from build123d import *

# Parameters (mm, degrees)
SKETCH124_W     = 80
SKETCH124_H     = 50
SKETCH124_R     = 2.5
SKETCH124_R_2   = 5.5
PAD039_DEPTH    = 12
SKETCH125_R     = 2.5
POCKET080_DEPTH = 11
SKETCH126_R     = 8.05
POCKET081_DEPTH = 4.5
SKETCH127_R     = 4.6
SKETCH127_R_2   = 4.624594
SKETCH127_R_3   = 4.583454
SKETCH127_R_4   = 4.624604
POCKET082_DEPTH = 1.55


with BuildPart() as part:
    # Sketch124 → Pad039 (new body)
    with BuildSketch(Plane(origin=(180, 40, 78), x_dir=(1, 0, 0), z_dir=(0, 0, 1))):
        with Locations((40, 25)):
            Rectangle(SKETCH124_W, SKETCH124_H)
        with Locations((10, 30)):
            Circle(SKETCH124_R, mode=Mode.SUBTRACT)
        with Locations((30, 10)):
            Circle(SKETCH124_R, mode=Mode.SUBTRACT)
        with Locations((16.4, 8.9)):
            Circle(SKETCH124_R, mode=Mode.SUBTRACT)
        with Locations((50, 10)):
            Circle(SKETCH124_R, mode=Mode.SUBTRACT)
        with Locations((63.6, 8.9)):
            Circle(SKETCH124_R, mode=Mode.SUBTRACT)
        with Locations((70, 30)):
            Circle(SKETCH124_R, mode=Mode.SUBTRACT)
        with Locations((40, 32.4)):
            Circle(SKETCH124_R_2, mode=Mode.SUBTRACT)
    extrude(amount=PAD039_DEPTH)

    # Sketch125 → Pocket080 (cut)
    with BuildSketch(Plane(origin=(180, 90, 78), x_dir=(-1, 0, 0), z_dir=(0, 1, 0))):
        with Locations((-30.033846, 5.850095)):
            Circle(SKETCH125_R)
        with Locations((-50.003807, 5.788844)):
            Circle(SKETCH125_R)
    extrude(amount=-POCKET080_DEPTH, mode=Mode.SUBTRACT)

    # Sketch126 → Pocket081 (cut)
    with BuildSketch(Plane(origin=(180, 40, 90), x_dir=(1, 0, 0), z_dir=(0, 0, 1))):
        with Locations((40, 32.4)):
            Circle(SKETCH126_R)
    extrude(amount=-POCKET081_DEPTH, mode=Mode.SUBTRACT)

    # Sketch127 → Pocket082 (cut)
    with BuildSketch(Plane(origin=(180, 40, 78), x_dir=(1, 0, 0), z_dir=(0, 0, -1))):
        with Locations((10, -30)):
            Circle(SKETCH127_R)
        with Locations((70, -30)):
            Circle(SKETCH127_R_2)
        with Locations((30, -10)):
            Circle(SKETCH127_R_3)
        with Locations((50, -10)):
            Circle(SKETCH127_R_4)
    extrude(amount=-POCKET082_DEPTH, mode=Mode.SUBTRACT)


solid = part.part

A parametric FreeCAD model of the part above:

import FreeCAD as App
import Part
import Sketcher
Q = App.Units.Quantity

doc = App.newDocument("Part")
body = doc.addObject("PartDesign::Body", "Body")

sketch1 = body.newObject("Sketcher::SketchObject", "Sketch")
sketch1.AttachmentSupport = (doc.getObject("XY_Plane"), [""])
sketch1.MapMode = "FlatFace"
sketch1.AttachmentOffset = App.Placement(App.Vector(0, 0, 78), App.Rotation())
sketch1.addGeometry([
    Part.LineSegment(App.Vector(180, 90, 0), App.Vector(180, 40, 0)),
    Part.LineSegment(App.Vector(180, 40, 0), App.Vector(260, 40, 0)),
    Part.LineSegment(App.Vector(260, 40, 0), App.Vector(260, 90, 0)),
    Part.LineSegment(App.Vector(260, 90, 0), App.Vector(180, 90, 0)),
    Part.Circle(App.Vector(196.4, 48.9, 0), App.Vector(0, 0, 1), 2.5),
    Part.Circle(App.Vector(210, 50, 0), App.Vector(0, 0, 1), 2.5),
    Part.Circle(App.Vector(230, 50, 0), App.Vector(0, 0, 1), 2.5),
    Part.Circle(App.Vector(243.6, 48.9, 0), App.Vector(0, 0, 1), 2.5),
    Part.Circle(App.Vector(190, 70, 0), App.Vector(0, 0, 1), 2.5),
    Part.Circle(App.Vector(250, 70, 0), App.Vector(0, 0, 1), 2.5),
    Part.Circle(App.Vector(220, 72.4, 0), App.Vector(0, 0, 1), 5.5),
], False)
sketch1.addConstraint([
    Sketcher.Constraint("Coincident", 0, 2, 1, 1),
    Sketcher.Constraint("Coincident", 1, 2, 2, 1),
    Sketcher.Constraint("Coincident", 2, 2, 3, 1),
    Sketcher.Constraint("Coincident", 3, 2, 0, 1),
    Sketcher.Constraint("Vertical", 0),
    Sketcher.Constraint("Horizontal", 1),
    Sketcher.Constraint("Vertical", 2),
    Sketcher.Constraint("Horizontal", 3),
    Sketcher.Constraint("Equal", 4, 5),
    Sketcher.Constraint("Equal", 5, 6),
    Sketcher.Constraint("Equal", 6, 7),
    Sketcher.Constraint("Equal", 7, 8),
    Sketcher.Constraint("Equal", 8, 9),
    Sketcher.Constraint("Horizontal", 5, 3, 6, 3),
    Sketcher.Constraint("Horizontal", 4, 3, 7, 3),
    Sketcher.Constraint("Horizontal", 8, 3, 9, 3),
    Sketcher.Constraint("Diameter", 4, Q("5 mm")),
    Sketcher.Constraint("Diameter", 10, Q("11 mm")),
    Sketcher.Constraint("DistanceX", 1, 1, 1, 2, Q("80 mm")),
    Sketcher.Constraint("DistanceY", 0, 2, 0, 1, Q("50 mm")),
    Sketcher.Constraint("DistanceX", -1, 1, 5, 3, Q("210 mm")),
    Sketcher.Constraint("DistanceY", -1, 1, 5, 3, Q("50 mm")),
    Sketcher.Constraint("DistanceX", -1, 1, 6, 3, Q("230 mm")),
    Sketcher.Constraint("DistanceX", -1, 1, 8, 3, Q("190 mm")),
    Sketcher.Constraint("DistanceY", -1, 1, 8, 3, Q("70 mm")),
    Sketcher.Constraint("DistanceX", -1, 1, 9, 3, Q("250 mm")),
    Sketcher.Constraint("DistanceX", -1, 1, 10, 3, Q("220 mm")),
    Sketcher.Constraint("DistanceX", -1, 1, 0, 2, Q("180 mm")),
    Sketcher.Constraint("DistanceY", -1, 1, 0, 2, Q("40 mm")),
    Sketcher.Constraint("DistanceX", -1, 1, 4, 3, Q("196.4 mm")),
    Sketcher.Constraint("DistanceY", -1, 1, 4, 3, Q("48.9 mm")),
    Sketcher.Constraint("DistanceX", -1, 1, 7, 3, Q("243.6 mm")),
    Sketcher.Constraint("DistanceY", -1, 1, 10, 3, Q("72.4 mm")),
])
pad1 = body.newObject("PartDesign::Pad", "Pad")
pad1.Profile = sketch1
pad1.Length = 12

sketch2 = body.newObject("Sketcher::SketchObject", "Sketch001")
sketch2.AttachmentSupport = (doc.getObject("XZ_Plane"), [""])
sketch2.MapMode = "FlatFace"
sketch2.AttachmentOffset = App.Placement(App.Vector(0, 0, -90), App.Rotation())
sketch2.addGeometry([
    Part.Circle(App.Vector(210.033846, 83.850095, 0), App.Vector(0, 0, 1), 2.5),
    Part.Circle(App.Vector(230.003807, 83.788844, 0), App.Vector(0, 0, 1), 2.5),
], False)
sketch2.addConstraint([
    Sketcher.Constraint("Equal", 0, 1),
    Sketcher.Constraint("Diameter", 0, Q("5 mm")),
    Sketcher.Constraint("DistanceX", 0, 3, 1, 3, Q("19.969961 mm")),
    Sketcher.Constraint("DistanceY", 1, 3, 0, 3, Q("0.061251 mm")),
    Sketcher.Constraint("DistanceX", -1, 1, 0, 3, Q("210.033846 mm")),
    Sketcher.Constraint("DistanceY", -1, 1, 0, 3, Q("83.850095 mm")),
])
pocket1 = body.newObject("PartDesign::Pocket", "Pocket")
pocket1.Profile = sketch2
pocket1.Length = 11
pocket1.Reversed = True

sketch3 = body.newObject("Sketcher::SketchObject", "Sketch002")
sketch3.AttachmentSupport = (doc.getObject("XY_Plane"), [""])
sketch3.MapMode = "FlatFace"
sketch3.AttachmentOffset = App.Placement(App.Vector(0, 0, 90), App.Rotation())
sketch3.addGeometry(Part.Circle(App.Vector(220, 72.4, 0), App.Vector(0, 0, 1), 8.05), False)
sketch3.addConstraint([
    Sketcher.Constraint("Diameter", 0, Q("16.1 mm")),
    Sketcher.Constraint("DistanceX", -1, 1, 0, 3, Q("220 mm")),
    Sketcher.Constraint("DistanceY", -1, 1, 0, 3, Q("72.4 mm")),
])
pocket2 = body.newObject("PartDesign::Pocket", "Pocket001")
pocket2.Profile = sketch3
pocket2.Length = 4.5

sketch4 = body.newObject("Sketcher::SketchObject", "Sketch003")
sketch4.AttachmentSupport = (doc.getObject("XY_Plane"), [""])
sketch4.MapMode = "FlatFace"
sketch4.AttachmentOffset = App.Placement(App.Vector(0, 0, 78), App.Rotation())
sketch4.addGeometry([
    Part.Circle(App.Vector(190, 70, 0), App.Vector(0, 0, 1), 4.6),
    Part.Circle(App.Vector(250, 70, 0), App.Vector(0, 0, 1), 4.624594),
    Part.Circle(App.Vector(210, 50, 0), App.Vector(0, 0, 1), 4.583454),
    Part.Circle(App.Vector(230, 50, 0), App.Vector(0, 0, 1), 4.624604),
], False)
sketch4.addConstraint([
    Sketcher.Constraint("Horizontal", 0, 3, 1, 3),
    Sketcher.Constraint("Horizontal", 2, 3, 3, 3),
    Sketcher.Constraint("Diameter", 0, Q("9.2 mm")),
    Sketcher.Constraint("DistanceX", -1, 1, 0, 3, Q("190 mm")),
    Sketcher.Constraint("DistanceY", -1, 1, 0, 3, Q("70 mm")),
    Sketcher.Constraint("DistanceX", -1, 1, 1, 3, Q("250 mm")),
    Sketcher.Constraint("DistanceX", -1, 1, 2, 3, Q("210 mm")),
    Sketcher.Constraint("DistanceY", -1, 1, 2, 3, Q("50 mm")),
    Sketcher.Constraint("DistanceX", -1, 1, 3, 3, Q("230 mm")),
    Sketcher.Constraint("Diameter", 1, Q("9.249188 mm")),
    Sketcher.Constraint("Diameter", 2, Q("9.166908 mm")),
    Sketcher.Constraint("Diameter", 3, Q("9.249208 mm")),
])
pocket3 = body.newObject("PartDesign::Pocket", "Pocket002")
pocket3.Profile = sketch4
pocket3.Length = 1.55
pocket3.Reversed = True

doc.recompute()
